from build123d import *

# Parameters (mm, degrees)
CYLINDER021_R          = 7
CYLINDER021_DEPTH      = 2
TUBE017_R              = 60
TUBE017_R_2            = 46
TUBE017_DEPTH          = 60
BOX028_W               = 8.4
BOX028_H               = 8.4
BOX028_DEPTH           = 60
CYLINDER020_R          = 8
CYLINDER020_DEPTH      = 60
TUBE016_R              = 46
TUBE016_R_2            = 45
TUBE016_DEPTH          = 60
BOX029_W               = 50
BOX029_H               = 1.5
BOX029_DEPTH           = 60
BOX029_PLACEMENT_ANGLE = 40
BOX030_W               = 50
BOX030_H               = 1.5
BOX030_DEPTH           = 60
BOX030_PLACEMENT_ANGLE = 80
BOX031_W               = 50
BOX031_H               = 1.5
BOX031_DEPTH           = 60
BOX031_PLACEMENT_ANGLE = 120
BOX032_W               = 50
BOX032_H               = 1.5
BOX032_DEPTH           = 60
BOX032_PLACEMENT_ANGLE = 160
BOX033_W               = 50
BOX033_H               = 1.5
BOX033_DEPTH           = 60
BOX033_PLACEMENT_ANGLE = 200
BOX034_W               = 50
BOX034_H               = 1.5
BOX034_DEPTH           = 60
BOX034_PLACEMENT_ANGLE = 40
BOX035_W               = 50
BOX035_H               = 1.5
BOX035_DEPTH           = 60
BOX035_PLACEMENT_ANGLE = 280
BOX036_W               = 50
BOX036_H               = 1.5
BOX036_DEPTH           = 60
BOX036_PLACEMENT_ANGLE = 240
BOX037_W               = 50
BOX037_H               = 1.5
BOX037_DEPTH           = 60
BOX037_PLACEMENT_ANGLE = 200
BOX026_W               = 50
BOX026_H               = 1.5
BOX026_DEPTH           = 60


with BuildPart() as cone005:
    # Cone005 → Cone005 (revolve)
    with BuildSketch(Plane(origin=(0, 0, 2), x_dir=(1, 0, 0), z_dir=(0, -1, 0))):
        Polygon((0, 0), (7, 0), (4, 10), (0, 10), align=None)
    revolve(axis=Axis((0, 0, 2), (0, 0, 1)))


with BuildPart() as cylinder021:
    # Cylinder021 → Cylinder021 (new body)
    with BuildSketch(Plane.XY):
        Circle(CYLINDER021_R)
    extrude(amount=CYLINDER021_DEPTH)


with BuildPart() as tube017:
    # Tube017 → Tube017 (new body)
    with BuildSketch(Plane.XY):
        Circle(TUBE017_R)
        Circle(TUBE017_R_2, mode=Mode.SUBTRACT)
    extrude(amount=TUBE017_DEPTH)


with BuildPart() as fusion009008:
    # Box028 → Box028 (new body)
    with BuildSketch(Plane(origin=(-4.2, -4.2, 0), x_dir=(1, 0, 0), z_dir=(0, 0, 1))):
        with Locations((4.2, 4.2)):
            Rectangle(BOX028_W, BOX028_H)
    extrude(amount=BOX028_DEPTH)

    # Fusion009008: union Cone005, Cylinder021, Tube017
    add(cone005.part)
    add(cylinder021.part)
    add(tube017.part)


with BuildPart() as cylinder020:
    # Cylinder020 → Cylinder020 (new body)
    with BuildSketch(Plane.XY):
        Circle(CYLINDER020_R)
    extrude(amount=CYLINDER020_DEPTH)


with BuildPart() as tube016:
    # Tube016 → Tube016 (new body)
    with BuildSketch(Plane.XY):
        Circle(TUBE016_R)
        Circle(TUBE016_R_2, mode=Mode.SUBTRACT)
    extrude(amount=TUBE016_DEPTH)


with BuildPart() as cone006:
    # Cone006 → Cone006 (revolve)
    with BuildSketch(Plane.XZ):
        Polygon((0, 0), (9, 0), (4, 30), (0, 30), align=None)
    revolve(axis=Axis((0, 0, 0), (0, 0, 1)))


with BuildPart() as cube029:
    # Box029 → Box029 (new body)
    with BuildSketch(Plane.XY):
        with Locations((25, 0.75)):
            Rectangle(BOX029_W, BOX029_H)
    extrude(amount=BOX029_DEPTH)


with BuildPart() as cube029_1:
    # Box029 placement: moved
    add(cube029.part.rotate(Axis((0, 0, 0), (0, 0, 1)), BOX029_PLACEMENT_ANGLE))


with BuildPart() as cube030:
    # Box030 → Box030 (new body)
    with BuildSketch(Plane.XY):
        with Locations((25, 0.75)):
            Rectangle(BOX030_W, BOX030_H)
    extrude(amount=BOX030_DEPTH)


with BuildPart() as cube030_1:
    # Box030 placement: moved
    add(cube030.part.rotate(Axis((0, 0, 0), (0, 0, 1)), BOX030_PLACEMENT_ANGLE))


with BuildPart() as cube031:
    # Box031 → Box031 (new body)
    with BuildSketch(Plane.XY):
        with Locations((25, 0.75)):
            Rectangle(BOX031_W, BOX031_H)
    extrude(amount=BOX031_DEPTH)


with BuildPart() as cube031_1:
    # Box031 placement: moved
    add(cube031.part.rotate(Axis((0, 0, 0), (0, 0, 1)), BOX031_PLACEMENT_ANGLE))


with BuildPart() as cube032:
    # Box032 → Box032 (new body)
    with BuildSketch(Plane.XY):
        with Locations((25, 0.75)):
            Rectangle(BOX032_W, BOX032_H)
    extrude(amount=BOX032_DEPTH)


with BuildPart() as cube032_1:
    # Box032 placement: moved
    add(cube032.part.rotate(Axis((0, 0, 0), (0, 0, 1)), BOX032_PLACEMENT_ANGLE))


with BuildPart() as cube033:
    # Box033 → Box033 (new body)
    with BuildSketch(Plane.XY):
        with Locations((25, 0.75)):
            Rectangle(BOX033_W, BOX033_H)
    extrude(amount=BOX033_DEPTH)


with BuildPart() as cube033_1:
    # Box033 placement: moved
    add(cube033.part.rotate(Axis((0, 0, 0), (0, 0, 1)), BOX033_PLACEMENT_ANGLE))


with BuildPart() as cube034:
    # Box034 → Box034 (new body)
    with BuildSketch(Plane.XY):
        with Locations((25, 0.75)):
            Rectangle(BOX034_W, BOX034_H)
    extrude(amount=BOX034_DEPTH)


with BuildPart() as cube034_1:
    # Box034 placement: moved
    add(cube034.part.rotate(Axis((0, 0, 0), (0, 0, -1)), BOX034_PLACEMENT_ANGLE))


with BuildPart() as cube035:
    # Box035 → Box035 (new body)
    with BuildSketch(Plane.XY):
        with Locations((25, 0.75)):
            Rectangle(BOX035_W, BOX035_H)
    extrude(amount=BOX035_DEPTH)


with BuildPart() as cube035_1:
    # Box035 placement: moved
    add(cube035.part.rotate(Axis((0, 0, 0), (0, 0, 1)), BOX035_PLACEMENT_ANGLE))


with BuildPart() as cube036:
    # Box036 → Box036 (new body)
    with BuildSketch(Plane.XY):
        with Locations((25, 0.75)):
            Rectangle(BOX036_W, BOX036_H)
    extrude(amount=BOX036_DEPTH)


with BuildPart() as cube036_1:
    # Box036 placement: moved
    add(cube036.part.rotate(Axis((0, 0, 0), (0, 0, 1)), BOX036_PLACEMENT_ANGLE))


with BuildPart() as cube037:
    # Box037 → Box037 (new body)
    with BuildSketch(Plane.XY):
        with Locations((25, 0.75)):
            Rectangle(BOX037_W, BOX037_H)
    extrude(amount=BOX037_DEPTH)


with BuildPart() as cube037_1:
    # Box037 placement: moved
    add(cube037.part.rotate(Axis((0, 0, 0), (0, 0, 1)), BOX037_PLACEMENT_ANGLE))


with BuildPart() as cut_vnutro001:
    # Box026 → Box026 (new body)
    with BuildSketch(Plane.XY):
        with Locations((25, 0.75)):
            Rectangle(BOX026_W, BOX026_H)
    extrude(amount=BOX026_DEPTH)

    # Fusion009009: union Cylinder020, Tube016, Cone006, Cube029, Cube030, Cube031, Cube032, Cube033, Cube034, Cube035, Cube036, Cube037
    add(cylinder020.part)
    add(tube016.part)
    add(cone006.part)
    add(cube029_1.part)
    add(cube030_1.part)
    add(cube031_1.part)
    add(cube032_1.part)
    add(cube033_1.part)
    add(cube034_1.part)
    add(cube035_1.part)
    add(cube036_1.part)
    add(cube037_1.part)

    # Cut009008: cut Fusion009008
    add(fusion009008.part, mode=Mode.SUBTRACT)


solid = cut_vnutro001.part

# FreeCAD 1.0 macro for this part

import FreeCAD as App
import Part
import Sketcher
from FreeCAD import Vector


def add_polygon(sketch, points):
    """Adds a closed chain of lines whose ends are joined by coincident constraints."""
    first, n = sketch.GeometryCount, len(points)
    for a, b in zip(points, points[1:] + points[:1]):
        sketch.addGeometry(Part.LineSegment(App.Vector(*a, 0), App.Vector(*b, 0)), False)
    for i in range(n):
        sketch.addConstraint(Sketcher.Constraint("Coincident", first + i, 2, first + (i + 1) % n, 1))

doc = App.newDocument("Part")
params = doc.addObject("Spreadsheet::Sheet", "Params")
for row, (alias, value) in enumerate([
    ("sketch1_width", "7 mm"),
    ("sketch1_width2", "4 mm"),
    ("sketch1_height", "10 mm"),
    ("revolution_angle", "360 deg"),
    ("sketch2_diameter", "14 mm"),
    ("pad1_length", "2 mm"),
    ("sketch3_diameter", "120 mm"),
    ("sketch3_diameter2", "92 mm"),
    ("pad2_length", "60 mm"),
    ("sketch4_width", "8.4 mm"),
    ("pad3_length", "60 mm"),
    ("sketch5_diameter", "16 mm"),
    ("pad4_length", "60 mm"),
    ("sketch6_diameter", "92 mm"),
    ("sketch6_diameter2", "90 mm"),
    ("pad5_length", "60 mm"),
    ("sketch7_width", "9 mm"),
    ("sketch7_width2", "4 mm"),
    ("sketch7_height", "30 mm"),
    ("revolution2_angle", "360 deg"),
    ("sketch8_width", "50 mm"),
    ("sketch8_height", "1.5 mm"),
    ("pad6_length", "60 mm"),
    ("sketch9_width", "50 mm"),
    ("sketch9_height", "1.5 mm"),
    ("pad7_length", "60 mm"),
    ("sketch10_width", "50 mm"),
    ("sketch10_height", "1.5 mm"),
    ("pad8_length", "60 mm"),
    ("sketch11_width", "50 mm"),
    ("sketch11_height", "1.5 mm"),
    ("pad9_length", "60 mm"),
    ("sketch12_width", "50 mm"),
    ("sketch12_height", "1.5 mm"),
    ("pad10_length", "60 mm"),
    ("sketch13_width", "50 mm"),
    ("sketch13_height", "1.5 mm"),
    ("pad11_length", "60 mm"),
    ("sketch14_width", "50 mm"),
    ("sketch14_height", "1.5 mm"),
    ("pad12_length", "60 mm"),
    ("sketch15_width", "50 mm"),
    ("sketch15_height", "1.5 mm"),
    ("pad13_length", "60 mm"),
    ("sketch16_width", "50 mm"),
    ("sketch16_height", "1.5 mm"),
    ("pad14_length", "60 mm"),
    ("sketch17_width", "50 mm"),
    ("sketch17_height", "1.5 mm"),
    ("pad15_length", "60 mm"),
], start=1):
    params.set(f"A{row}", alias)
    params.set(f"B{row}", "=" + value)
    params.setAlias(f"B{row}", alias)

body = doc.addObject("PartDesign::Body", "Body")

# Sketch on XZ plane
sketch1 = body.newObject("Sketcher::SketchObject", "Sketch")
sketch1.AttachmentSupport = (doc.getObject("XZ_Plane"), [""])
sketch1.MapMode = "FlatFace"
add_polygon(sketch1, [(0, 2), (7, 2), (4, 12), (0, 12)])  # lines 0-3
sketch1.addConstraint(Sketcher.Constraint("Horizontal", 0))
sketch1.addConstraint(Sketcher.Constraint("Horizontal", 2))
sketch1.addConstraint(Sketcher.Constraint("Vertical", 3))
sketch1.addConstraint(Sketcher.Constraint("PointOnObject", 2, 2, -2))
sketch1.addConstraint(Sketcher.Constraint("DistanceX", 0, 1, 0, 2, 7.0))
sketch1.addConstraint(Sketcher.Constraint("DistanceX", 2, 2, 2, 1, 4.0))
sketch1.addConstraint(Sketcher.Constraint("DistanceY", 3, 2, 3, 1, 10.0))
sketch1.addConstraint(Sketcher.Constraint("DistanceY", -1, 1, 0, 2, 2.0))
sketch1.setExpression("Constraints[8]", "Params.sketch1_width")
sketch1.setExpression("Constraints[9]", "Params.sketch1_width2")
sketch1.setExpression("Constraints[10]", "Params.sketch1_height")
revolution = body.newObject("PartDesign::Revolution", "Revolution")
revolution.Profile = sketch1
revolution.ReferenceAxis = (sketch1, ["V_Axis"])
revolution.setExpression("Angle", "Params.revolution_angle")
body2 = doc.addObject("PartDesign::Body", "Body001")

# Sketch on XY plane
sketch2 = body2.newObject("Sketcher::SketchObject", "Sketch001")
sketch2.AttachmentSupport = (doc.getObject("XY_Plane001"), [""])
sketch2.MapMode = "FlatFace"
sketch2.addGeometry(Part.Circle(Vector(0, 0, 0), Vector(0, 0, 1), 7), False)
sketch2.addConstraint(Sketcher.Constraint("Coincident", 0, 3, -1, 1))
sketch2.addConstraint(Sketcher.Constraint("Diameter", 0, 14.0))
sketch2.setExpression("Constraints[1]", "Params.sketch2_diameter")
pad1 = body2.newObject("PartDesign::Pad", "Pad")
pad1.Profile = sketch2
pad1.setExpression("Length", "Params.pad1_length")
body3 = doc.addObject("PartDesign::Body", "Body002")

# Sketch on XY plane
sketch3 = body3.newObject("Sketcher::SketchObject", "Sketch002")
sketch3.AttachmentSupport = (doc.getObject("XY_Plane002"), [""])
sketch3.MapMode = "FlatFace"
sketch3.addGeometry(Part.Circle(Vector(0, 0, 0), Vector(0, 0, 1), 60), False)
sketch3.addGeometry(Part.Circle(Vector(0, 0, 0), Vector(0, 0, 1), 46), False)
sketch3.addConstraint(Sketcher.Constraint("Coincident", 0, 3, -1, 1))
sketch3.addConstraint(Sketcher.Constraint("Coincident", 1, 3, -1, 1))
sketch3.addConstraint(Sketcher.Constraint("Diameter", 0, 120.0))
sketch3.addConstraint(Sketcher.Constraint("Diameter", 1, 92.0))
sketch3.setExpression("Constraints[2]", "Params.sketch3_diameter")
sketch3.setExpression("Constraints[3]", "Params.sketch3_diameter2")
pad2 = body3.newObject("PartDesign::Pad", "Pad001")
pad2.Profile = sketch3
pad2.setExpression("Length", "Params.pad2_length")
body4 = doc.addObject("PartDesign::Body", "Body003")
body4.AllowCompound = True

# Sketch on XY plane
sketch4 = body4.newObject("Sketcher::SketchObject", "Sketch003")
sketch4.AttachmentSupport = (doc.getObject("XY_Plane003"), [""])
sketch4.MapMode = "FlatFace"
add_polygon(sketch4, [(-4, 4), (-4, -4), (4, -4), (4, 4)])  # lines 0-3
sketch4.addConstraint(Sketcher.Constraint("Vertical", 0))
sketch4.addConstraint(Sketcher.Constraint("Horizontal", 1))
sketch4.addConstraint(Sketcher.Constraint("Vertical", 2))
sketch4.addConstraint(Sketcher.Constraint("Horizontal", 3))
sketch4.addConstraint(Sketcher.Constraint("Symmetric", 0, 2, 2, 2, -1, 1))
sketch4.addConstraint(Sketcher.Constraint("Equal", 3, 0))
sketch4.addConstraint(Sketcher.Constraint("DistanceX", 1, 1, 1, 2, 8.4))
sketch4.setExpression("Constraints[10]", "Params.sketch4_width")
pad3 = body4.newObject("PartDesign::Pad", "Pad002")
pad3.Profile = sketch4
pad3.setExpression("Length", "Params.pad3_length")
doc.recompute()

boolean = body4.newObject("PartDesign::Boolean", "Boolean")
boolean.Type = "Fuse"
boolean.addObjects([body])
doc.recompute()

boolean2 = body4.newObject("PartDesign::Boolean", "Boolean001")
boolean2.Type = "Fuse"
boolean2.addObjects([body2])
doc.recompute()

boolean3 = body4.newObject("PartDesign::Boolean", "Boolean002")
boolean3.Type = "Fuse"
boolean3.addObjects([body3])
body5 = doc.addObject("PartDesign::Body", "Body004")

# Sketch on XY plane
sketch5 = body5.newObject("Sketcher::SketchObject", "Sketch004")
sketch5.AttachmentSupport = (doc.getObject("XY_Plane004"), [""])
sketch5.MapMode = "FlatFace"
sketch5.addGeometry(Part.Circle(Vector(0, 0, 0), Vector(0, 0, 1), 8), False)
sketch5.addConstraint(Sketcher.Constraint("Coincident", 0, 3, -1, 1))
sketch5.addConstraint(Sketcher.Constraint("Diameter", 0, 16.0))
sketch5.setExpression("Constraints[1]", "Params.sketch5_diameter")
pad4 = body5.newObject("PartDesign::Pad", "Pad003")
pad4.Profile = sketch5
pad4.setExpression("Length", "Params.pad4_length")
body6 = doc.addObject("PartDesign::Body", "Body005")

# Sketch on XY plane
sketch6 = body6.newObject("Sketcher::SketchObject", "Sketch005")
sketch6.AttachmentSupport = (doc.getObject("XY_Plane005"), [""])
sketch6.MapMode = "FlatFace"
sketch6.addGeometry(Part.Circle(Vector(0, 0, 0), Vector(0, 0, 1), 46), False)
sketch6.addGeometry(Part.Circle(Vector(0, 0, 0), Vector(0, 0, 1), 45), False)
sketch6.addConstraint(Sketcher.Constraint("Coincident", 0, 3, -1, 1))
sketch6.addConstraint(Sketcher.Constraint("Coincident", 1, 3, -1, 1))
sketch6.addConstraint(Sketcher.Constraint("Diameter", 0, 92.0))
sketch6.addConstraint(Sketcher.Constraint("Diameter", 1, 90.0))
sketch6.setExpression("Constraints[2]", "Params.sketch6_diameter")
sketch6.setExpression("Constraints[3]", "Params.sketch6_diameter2")
pad5 = body6.newObject("PartDesign::Pad", "Pad004")
pad5.Profile = sketch6
pad5.setExpression("Length", "Params.pad5_length")
body7 = doc.addObject("PartDesign::Body", "Body006")

# Sketch on XZ plane
sketch7 = body7.newObject("Sketcher::SketchObject", "Sketch006")
sketch7.AttachmentSupport = (doc.getObject("XZ_Plane006"), [""])
sketch7.MapMode = "FlatFace"
add_polygon(sketch7, [(0, 0), (9, 0), (4, 30), (0, 30)])  # lines 0-3
sketch7.addConstraint(Sketcher.Constraint("Horizontal", 0))
sketch7.addConstraint(Sketcher.Constraint("Horizontal", 2))
sketch7.addConstraint(Sketcher.Constraint("Vertical", 3))
sketch7.addConstraint(Sketcher.Constraint("Coincident", 3, 2, -1, 1))
sketch7.addConstraint(Sketcher.Constraint("DistanceX", 0, 1, 0, 2, 9.0))
sketch7.addConstraint(Sketcher.Constraint("DistanceX", 2, 2, 2, 1, 4.0))
sketch7.addConstraint(Sketcher.Constraint("DistanceY", 3, 2, 3, 1, 30.0))
sketch7.setExpression("Constraints[8]", "Params.sketch7_width")
sketch7.setExpression("Constraints[9]", "Params.sketch7_width2")
sketch7.setExpression("Constraints[10]", "Params.sketch7_height")
revolution2 = body7.newObject("PartDesign::Revolution", "Revolution001")
revolution2.Profile = sketch7
revolution2.ReferenceAxis = (sketch7, ["V_Axis"])
revolution2.setExpression("Angle", "Params.revolution2_angle")
body8 = doc.addObject("PartDesign::Body", "Body007")

# Sketch on XY plane
sketch8 = body8.newObject("Sketcher::SketchObject", "Sketch007")
sketch8.AttachmentSupport = (doc.getObject("XY_Plane007"), [""])
sketch8.MapMode = "FlatFace"
add_polygon(sketch8, [(0, 1.5), (0, 0), (50, 0), (50, 1.5)])  # lines 0-3
sketch8.addConstraint(Sketcher.Constraint("Vertical", 0))
sketch8.addConstraint(Sketcher.Constraint("Horizontal", 1))
sketch8.addConstraint(Sketcher.Constraint("Vertical", 2))
sketch8.addConstraint(Sketcher.Constraint("Horizontal", 3))
sketch8.addConstraint(Sketcher.Constraint("Coincident", 0, 2, -1, 1))
sketch8.addConstraint(Sketcher.Constraint("DistanceX", 1, 1, 1, 2, 50.0))
sketch8.addConstraint(Sketcher.Constraint("DistanceY", 0, 2, 0, 1, 1.5))
sketch8.setExpression("Constraints[9]", "Params.sketch8_width")
sketch8.setExpression("Constraints[10]", "Params.sketch8_height")
pad6 = body8.newObject("PartDesign::Pad", "Pad005")
pad6.Profile = sketch8
pad6.setExpression("Length", "Params.pad6_length")
body9 = doc.addObject("PartDesign::Body", "Body008")
doc.recompute()

body8.Placement = App.Placement(Vector(0, 0, 0), App.Rotation(Vector(0, 0, 1), 40))
boolean4 = body9.newObject("PartDesign::Boolean", "Boolean003")
boolean4.Type = "Fuse"
boolean4.addObjects([body8])
body10 = doc.addObject("PartDesign::Body", "Body009")

# Sketch on XY plane
sketch9 = body10.newObject("Sketcher::SketchObject", "Sketch008")
sketch9.AttachmentSupport = (doc.getObject("XY_Plane009"), [""])
sketch9.MapMode = "FlatFace"
add_polygon(sketch9, [(0, 1.5), (0, 0), (50, 0), (50, 1.5)])  # lines 0-3
sketch9.addConstraint(Sketcher.Constraint("Vertical", 0))
sketch9.addConstraint(Sketcher.Constraint("Horizontal", 1))
sketch9.addConstraint(Sketcher.Constraint("Vertical", 2))
sketch9.addConstraint(Sketcher.Constraint("Horizontal", 3))
sketch9.addConstraint(Sketcher.Constraint("Coincident", 0, 2, -1, 1))
sketch9.addConstraint(Sketcher.Constraint("DistanceX", 1, 1, 1, 2, 50.0))
sketch9.addConstraint(Sketcher.Constraint("DistanceY", 0, 2, 0, 1, 1.5))
sketch9.setExpression("Constraints[9]", "Params.sketch9_width")
sketch9.setExpression("Constraints[10]", "Params.sketch9_height")
pad7 = body10.newObject("PartDesign::Pad", "Pad006")
pad7.Profile = sketch9
pad7.setExpression("Length", "Params.pad7_length")
body11 = doc.addObject("PartDesign::Body", "Body010")
doc.recompute()

body10.Placement = App.Placement(Vector(0, 0, 0), App.Rotation(Vector(0, 0, 1), 80))
boolean5 = body11.newObject("PartDesign::Boolean", "Boolean004")
boolean5.Type = "Fuse"
boolean5.addObjects([body10])
body12 = doc.addObject("PartDesign::Body", "Body011")

# Sketch on XY plane
sketch10 = body12.newObject("Sketcher::SketchObject", "Sketch009")
sketch10.AttachmentSupport = (doc.getObject("XY_Plane011"), [""])
sketch10.MapMode = "FlatFace"
add_polygon(sketch10, [(0, 1.5), (0, 0), (50, 0), (50, 1.5)])  # lines 0-3
sketch10.addConstraint(Sketcher.Constraint("Vertical", 0))
sketch10.addConstraint(Sketcher.Constraint("Horizontal", 1))
sketch10.addConstraint(Sketcher.Constraint("Vertical", 2))
sketch10.addConstraint(Sketcher.Constraint("Horizontal", 3))
sketch10.addConstraint(Sketcher.Constraint("Coincident", 0, 2, -1, 1))
sketch10.addConstraint(Sketcher.Constraint("DistanceX", 1, 1, 1, 2, 50.0))
sketch10.addConstraint(Sketcher.Constraint("DistanceY", 0, 2, 0, 1, 1.5))
sketch10.setExpression("Constraints[9]", "Params.sketch10_width")
sketch10.setExpression("Constraints[10]", "Params.sketch10_height")
pad8 = body12.newObject("PartDesign::Pad", "Pad007")
pad8.Profile = sketch10
pad8.setExpression("Length", "Params.pad8_length")
body13 = doc.addObject("PartDesign::Body", "Body012")
doc.recompute()

body12.Placement = App.Placement(Vector(0, 0, 0), App.Rotation(Vector(0, 0, 1), 120))
boolean6 = body13.newObject("PartDesign::Boolean", "Boolean005")
boolean6.Type = "Fuse"
boolean6.addObjects([body12])
body14 = doc.addObject("PartDesign::Body", "Body013")

# Sketch on XY plane
sketch11 = body14.newObject("Sketcher::SketchObject", "Sketch010")
sketch11.AttachmentSupport = (doc.getObject("XY_Plane013"), [""])
sketch11.MapMode = "FlatFace"
add_polygon(sketch11, [(0, 1.5), (0, 0), (50, 0), (50, 1.5)])  # lines 0-3
sketch11.addConstraint(Sketcher.Constraint("Vertical", 0))
sketch11.addConstraint(Sketcher.Constraint("Horizontal", 1))
sketch11.addConstraint(Sketcher.Constraint("Vertical", 2))
sketch11.addConstraint(Sketcher.Constraint("Horizontal", 3))
sketch11.addConstraint(Sketcher.Constraint("Coincident", 0, 2, -1, 1))
sketch11.addConstraint(Sketcher.Constraint("DistanceX", 1, 1, 1, 2, 50.0))
sketch11.addConstraint(Sketcher.Constraint("DistanceY", 0, 2, 0, 1, 1.5))
sketch11.setExpression("Constraints[9]", "Params.sketch11_width")
sketch11.setExpression("Constraints[10]", "Params.sketch11_height")
pad9 = body14.newObject("PartDesign::Pad", "Pad008")
pad9.Profile = sketch11
pad9.setExpression("Length", "Params.pad9_length")
body15 = doc.addObject("PartDesign::Body", "Body014")
doc.recompute()

body14.Placement = App.Placement(Vector(0, 0, 0), App.Rotation(Vector(0, 0, 1), 160))
boolean7 = body15.newObject("PartDesign::Boolean", "Boolean006")
boolean7.Type = "Fuse"
boolean7.addObjects([body14])
body16 = doc.addObject("PartDesign::Body", "Body015")

# Sketch on XY plane
sketch12 = body16.newObject("Sketcher::SketchObject", "Sketch011")
sketch12.AttachmentSupport = (doc.getObject("XY_Plane015"), [""])
sketch12.MapMode = "FlatFace"
add_polygon(sketch12, [(0, 1.5), (0, 0), (50, 0), (50, 1.5)])  # lines 0-3
sketch12.addConstraint(Sketcher.Constraint("Vertical", 0))
sketch12.addConstraint(Sketcher.Constraint("Horizontal", 1))
sketch12.addConstraint(Sketcher.Constraint("Vertical", 2))
sketch12.addConstraint(Sketcher.Constraint("Horizontal", 3))
sketch12.addConstraint(Sketcher.Constraint("Coincident", 0, 2, -1, 1))
sketch12.addConstraint(Sketcher.Constraint("DistanceX", 1, 1, 1, 2, 50.0))
sketch12.addConstraint(Sketcher.Constraint("DistanceY", 0, 2, 0, 1, 1.5))
sketch12.setExpression("Constraints[9]", "Params.sketch12_width")
sketch12.setExpression("Constraints[10]", "Params.sketch12_height")
pad10 = body16.newObject("PartDesign::Pad", "Pad009")
pad10.Profile = sketch12
pad10.setExpression("Length", "Params.pad10_length")
body17 = doc.addObject("PartDesign::Body", "Body016")
doc.recompute()

body16.Placement = App.Placement(Vector(0, 0, 0), App.Rotation(Vector(0, 0, 1), 200))
boolean8 = body17.newObject("PartDesign::Boolean", "Boolean007")
boolean8.Type = "Fuse"
boolean8.addObjects([body16])
body18 = doc.addObject("PartDesign::Body", "Body017")

# Sketch on XY plane
sketch13 = body18.newObject("Sketcher::SketchObject", "Sketch012")
sketch13.AttachmentSupport = (doc.getObject("XY_Plane017"), [""])
sketch13.MapMode = "FlatFace"
add_polygon(sketch13, [(0, 1.5), (0, 0), (50, 0), (50, 1.5)])  # lines 0-3
sketch13.addConstraint(Sketcher.Constraint("Vertical", 0))
sketch13.addConstraint(Sketcher.Constraint("Horizontal", 1))
sketch13.addConstraint(Sketcher.Constraint("Vertical", 2))
sketch13.addConstraint(Sketcher.Constraint("Horizontal", 3))
sketch13.addConstraint(Sketcher.Constraint("Coincident", 0, 2, -1, 1))
sketch13.addConstraint(Sketcher.Constraint("DistanceX", 1, 1, 1, 2, 50.0))
sketch13.addConstraint(Sketcher.Constraint("DistanceY", 0, 2, 0, 1, 1.5))
sketch13.setExpression("Constraints[9]", "Params.sketch13_width")
sketch13.setExpression("Constraints[10]", "Params.sketch13_height")
pad11 = body18.newObject("PartDesign::Pad", "Pad010")
pad11.Profile = sketch13
pad11.setExpression("Length", "Params.pad11_length")
body19 = doc.addObject("PartDesign::Body", "Body018")
doc.recompute()

body18.Placement = App.Placement(Vector(0, 0, 0), App.Rotation(Vector(0, 0, -1), 40))
boolean9 = body19.newObject("PartDesign::Boolean", "Boolean008")
boolean9.Type = "Fuse"
boolean9.addObjects([body18])
body20 = doc.addObject("PartDesign::Body", "Body019")

# Sketch on XY plane
sketch14 = body20.newObject("Sketcher::SketchObject", "Sketch013")
sketch14.AttachmentSupport = (doc.getObject("XY_Plane019"), [""])
sketch14.MapMode = "FlatFace"
add_polygon(sketch14, [(0, 1.5), (0, 0), (50, 0), (50, 1.5)])  # lines 0-3
sketch14.addConstraint(Sketcher.Constraint("Vertical", 0))
sketch14.addConstraint(Sketcher.Constraint("Horizontal", 1))
sketch14.addConstraint(Sketcher.Constraint("Vertical", 2))
sketch14.addConstraint(Sketcher.Constraint("Horizontal", 3))
sketch14.addConstraint(Sketcher.Constraint("Coincident", 0, 2, -1, 1))
sketch14.addConstraint(Sketcher.Constraint("DistanceX", 1, 1, 1, 2, 50.0))
sketch14.addConstraint(Sketcher.Constraint("DistanceY", 0, 2, 0, 1, 1.5))
sketch14.setExpression("Constraints[9]", "Params.sketch14_width")
sketch14.setExpression("Constraints[10]", "Params.sketch14_height")
pad12 = body20.newObject("PartDesign::Pad", "Pad011")
pad12.Profile = sketch14
pad12.setExpression("Length", "Params.pad12_length")
body21 = doc.addObject("PartDesign::Body", "Body020")
doc.recompute()

body20.Placement = App.Placement(Vector(0, 0, 0), App.Rotation(Vector(0, 0, 1), 280))
boolean10 = body21.newObject("PartDesign::Boolean", "Boolean009")
boolean10.Type = "Fuse"
boolean10.addObjects([body20])
body22 = doc.addObject("PartDesign::Body", "Body021")

# Sketch on XY plane
sketch15 = body22.newObject("Sketcher::SketchObject", "Sketch014")
sketch15.AttachmentSupport = (doc.getObject("XY_Plane021"), [""])
sketch15.MapMode = "FlatFace"
add_polygon(sketch15, [(0, 1.5), (0, 0), (50, 0), (50, 1.5)])  # lines 0-3
sketch15.addConstraint(Sketcher.Constraint("Vertical", 0))
sketch15.addConstraint(Sketcher.Constraint("Horizontal", 1))
sketch15.addConstraint(Sketcher.Constraint("Vertical", 2))
sketch15.addConstraint(Sketcher.Constraint("Horizontal", 3))
sketch15.addConstraint(Sketcher.Constraint("Coincident", 0, 2, -1, 1))
sketch15.addConstraint(Sketcher.Constraint("DistanceX", 1, 1, 1, 2, 50.0))
sketch15.addConstraint(Sketcher.Constraint("DistanceY", 0, 2, 0, 1, 1.5))
sketch15.setExpression("Constraints[9]", "Params.sketch15_width")
sketch15.setExpression("Constraints[10]", "Params.sketch15_height")
pad13 = body22.newObject("PartDesign::Pad", "Pad012")
pad13.Profile = sketch15
pad13.setExpression("Length", "Params.pad13_length")
body23 = doc.addObject("PartDesign::Body", "Body022")
doc.recompute()

body22.Placement = App.Placement(Vector(0, 0, 0), App.Rotation(Vector(0, 0, 1), 240))
boolean11 = body23.newObject("PartDesign::Boolean", "Boolean010")
boolean11.Type = "Fuse"
boolean11.addObjects([body22])
body24 = doc.addObject("PartDesign::Body", "Body023")

# Sketch on XY plane
sketch16 = body24.newObject("Sketcher::SketchObject", "Sketch015")
sketch16.AttachmentSupport = (doc.getObject("XY_Plane023"), [""])
sketch16.MapMode = "FlatFace"
add_polygon(sketch16, [(0, 1.5), (0, 0), (50, 0), (50, 1.5)])  # lines 0-3
sketch16.addConstraint(Sketcher.Constraint("Vertical", 0))
sketch16.addConstraint(Sketcher.Constraint("Horizontal", 1))
sketch16.addConstraint(Sketcher.Constraint("Vertical", 2))
sketch16.addConstraint(Sketcher.Constraint("Horizontal", 3))
sketch16.addConstraint(Sketcher.Constraint("Coincident", 0, 2, -1, 1))
sketch16.addConstraint(Sketcher.Constraint("DistanceX", 1, 1, 1, 2, 50.0))
sketch16.addConstraint(Sketcher.Constraint("DistanceY", 0, 2, 0, 1, 1.5))
sketch16.setExpression("Constraints[9]", "Params.sketch16_width")
sketch16.setExpression("Constraints[10]", "Params.sketch16_height")
pad14 = body24.newObject("PartDesign::Pad", "Pad013")
pad14.Profile = sketch16
pad14.setExpression("Length", "Params.pad14_length")
body25 = doc.addObject("PartDesign::Body", "Body024")
doc.recompute()

body24.Placement = App.Placement(Vector(0, 0, 0), App.Rotation(Vector(0, 0, 1), 200))
boolean12 = body25.newObject("PartDesign::Boolean", "Boolean011")
boolean12.Type = "Fuse"
boolean12.addObjects([body24])
body26 = doc.addObject("PartDesign::Body", "Body025")

# Sketch on XY plane
sketch17 = body26.newObject("Sketcher::SketchObject", "Sketch016")
sketch17.AttachmentSupport = (doc.getObject("XY_Plane025"), [""])
sketch17.MapMode = "FlatFace"
add_polygon(sketch17, [(0, 1.5), (0, 0), (50, 0), (50, 1.5)])  # lines 0-3
sketch17.addConstraint(Sketcher.Constraint("Vertical", 0))
sketch17.addConstraint(Sketcher.Constraint("Horizontal", 1))
sketch17.addConstraint(Sketcher.Constraint("Vertical", 2))
sketch17.addConstraint(Sketcher.Constraint("Horizontal", 3))
sketch17.addConstraint(Sketcher.Constraint("Coincident", 0, 2, -1, 1))
sketch17.addConstraint(Sketcher.Constraint("DistanceX", 1, 1, 1, 2, 50.0))
sketch17.addConstraint(Sketcher.Constraint("DistanceY", 0, 2, 0, 1, 1.5))
sketch17.setExpression("Constraints[9]", "Params.sketch17_width")
sketch17.setExpression("Constraints[10]", "Params.sketch17_height")
pad15 = body26.newObject("PartDesign::Pad", "Pad014")
pad15.Profile = sketch17
pad15.setExpression("Length", "Params.pad15_length")
doc.recompute()

boolean13 = body26.newObject("PartDesign::Boolean", "Boolean012")
boolean13.Type = "Fuse"
boolean13.addObjects([body5])
doc.recompute()

boolean14 = body26.newObject("PartDesign::Boolean", "Boolean013")
boolean14.Type = "Fuse"
boolean14.addObjects([body6])
doc.recompute()

boolean15 = body26.newObject("PartDesign::Boolean", "Boolean014")
boolean15.Type = "Fuse"
boolean15.addObjects([body7])
doc.recompute()

boolean16 = body26.newObject("PartDesign::Boolean", "Boolean015")
boolean16.Type = "Fuse"
boolean16.addObjects([body9])
doc.recompute()

boolean17 = body26.newObject("PartDesign::Boolean", "Boolean016")
boolean17.Type = "Fuse"
boolean17.addObjects([body11])
doc.recompute()

boolean18 = body26.newObject("PartDesign::Boolean", "Boolean017")
boolean18.Type = "Fuse"
boolean18.addObjects([body13])
doc.recompute()

boolean19 = body26.newObject("PartDesign::Boolean", "Boolean018")
boolean19.Type = "Fuse"
boolean19.addObjects([body15])
doc.recompute()

boolean20 = body26.newObject("PartDesign::Boolean", "Boolean019")
boolean20.Type = "Fuse"
boolean20.addObjects([body17])
doc.recompute()

boolean21 = body26.newObject("PartDesign::Boolean", "Boolean020")
boolean21.Type = "Fuse"
boolean21.addObjects([body19])
doc.recompute()

boolean22 = body26.newObject("PartDesign::Boolean", "Boolean021")
boolean22.Type = "Fuse"
boolean22.addObjects([body21])
doc.recompute()

boolean23 = body26.newObject("PartDesign::Boolean", "Boolean022")
boolean23.Type = "Fuse"
boolean23.addObjects([body23])
doc.recompute()

boolean24 = body26.newObject("PartDesign::Boolean", "Boolean023")
boolean24.Type = "Fuse"
boolean24.addObjects([body25])
doc.recompute()

boolean25 = body26.newObject("PartDesign::Boolean", "Boolean024")
boolean25.Type = "Cut"
boolean25.addObjects([body4])

doc.recompute()
